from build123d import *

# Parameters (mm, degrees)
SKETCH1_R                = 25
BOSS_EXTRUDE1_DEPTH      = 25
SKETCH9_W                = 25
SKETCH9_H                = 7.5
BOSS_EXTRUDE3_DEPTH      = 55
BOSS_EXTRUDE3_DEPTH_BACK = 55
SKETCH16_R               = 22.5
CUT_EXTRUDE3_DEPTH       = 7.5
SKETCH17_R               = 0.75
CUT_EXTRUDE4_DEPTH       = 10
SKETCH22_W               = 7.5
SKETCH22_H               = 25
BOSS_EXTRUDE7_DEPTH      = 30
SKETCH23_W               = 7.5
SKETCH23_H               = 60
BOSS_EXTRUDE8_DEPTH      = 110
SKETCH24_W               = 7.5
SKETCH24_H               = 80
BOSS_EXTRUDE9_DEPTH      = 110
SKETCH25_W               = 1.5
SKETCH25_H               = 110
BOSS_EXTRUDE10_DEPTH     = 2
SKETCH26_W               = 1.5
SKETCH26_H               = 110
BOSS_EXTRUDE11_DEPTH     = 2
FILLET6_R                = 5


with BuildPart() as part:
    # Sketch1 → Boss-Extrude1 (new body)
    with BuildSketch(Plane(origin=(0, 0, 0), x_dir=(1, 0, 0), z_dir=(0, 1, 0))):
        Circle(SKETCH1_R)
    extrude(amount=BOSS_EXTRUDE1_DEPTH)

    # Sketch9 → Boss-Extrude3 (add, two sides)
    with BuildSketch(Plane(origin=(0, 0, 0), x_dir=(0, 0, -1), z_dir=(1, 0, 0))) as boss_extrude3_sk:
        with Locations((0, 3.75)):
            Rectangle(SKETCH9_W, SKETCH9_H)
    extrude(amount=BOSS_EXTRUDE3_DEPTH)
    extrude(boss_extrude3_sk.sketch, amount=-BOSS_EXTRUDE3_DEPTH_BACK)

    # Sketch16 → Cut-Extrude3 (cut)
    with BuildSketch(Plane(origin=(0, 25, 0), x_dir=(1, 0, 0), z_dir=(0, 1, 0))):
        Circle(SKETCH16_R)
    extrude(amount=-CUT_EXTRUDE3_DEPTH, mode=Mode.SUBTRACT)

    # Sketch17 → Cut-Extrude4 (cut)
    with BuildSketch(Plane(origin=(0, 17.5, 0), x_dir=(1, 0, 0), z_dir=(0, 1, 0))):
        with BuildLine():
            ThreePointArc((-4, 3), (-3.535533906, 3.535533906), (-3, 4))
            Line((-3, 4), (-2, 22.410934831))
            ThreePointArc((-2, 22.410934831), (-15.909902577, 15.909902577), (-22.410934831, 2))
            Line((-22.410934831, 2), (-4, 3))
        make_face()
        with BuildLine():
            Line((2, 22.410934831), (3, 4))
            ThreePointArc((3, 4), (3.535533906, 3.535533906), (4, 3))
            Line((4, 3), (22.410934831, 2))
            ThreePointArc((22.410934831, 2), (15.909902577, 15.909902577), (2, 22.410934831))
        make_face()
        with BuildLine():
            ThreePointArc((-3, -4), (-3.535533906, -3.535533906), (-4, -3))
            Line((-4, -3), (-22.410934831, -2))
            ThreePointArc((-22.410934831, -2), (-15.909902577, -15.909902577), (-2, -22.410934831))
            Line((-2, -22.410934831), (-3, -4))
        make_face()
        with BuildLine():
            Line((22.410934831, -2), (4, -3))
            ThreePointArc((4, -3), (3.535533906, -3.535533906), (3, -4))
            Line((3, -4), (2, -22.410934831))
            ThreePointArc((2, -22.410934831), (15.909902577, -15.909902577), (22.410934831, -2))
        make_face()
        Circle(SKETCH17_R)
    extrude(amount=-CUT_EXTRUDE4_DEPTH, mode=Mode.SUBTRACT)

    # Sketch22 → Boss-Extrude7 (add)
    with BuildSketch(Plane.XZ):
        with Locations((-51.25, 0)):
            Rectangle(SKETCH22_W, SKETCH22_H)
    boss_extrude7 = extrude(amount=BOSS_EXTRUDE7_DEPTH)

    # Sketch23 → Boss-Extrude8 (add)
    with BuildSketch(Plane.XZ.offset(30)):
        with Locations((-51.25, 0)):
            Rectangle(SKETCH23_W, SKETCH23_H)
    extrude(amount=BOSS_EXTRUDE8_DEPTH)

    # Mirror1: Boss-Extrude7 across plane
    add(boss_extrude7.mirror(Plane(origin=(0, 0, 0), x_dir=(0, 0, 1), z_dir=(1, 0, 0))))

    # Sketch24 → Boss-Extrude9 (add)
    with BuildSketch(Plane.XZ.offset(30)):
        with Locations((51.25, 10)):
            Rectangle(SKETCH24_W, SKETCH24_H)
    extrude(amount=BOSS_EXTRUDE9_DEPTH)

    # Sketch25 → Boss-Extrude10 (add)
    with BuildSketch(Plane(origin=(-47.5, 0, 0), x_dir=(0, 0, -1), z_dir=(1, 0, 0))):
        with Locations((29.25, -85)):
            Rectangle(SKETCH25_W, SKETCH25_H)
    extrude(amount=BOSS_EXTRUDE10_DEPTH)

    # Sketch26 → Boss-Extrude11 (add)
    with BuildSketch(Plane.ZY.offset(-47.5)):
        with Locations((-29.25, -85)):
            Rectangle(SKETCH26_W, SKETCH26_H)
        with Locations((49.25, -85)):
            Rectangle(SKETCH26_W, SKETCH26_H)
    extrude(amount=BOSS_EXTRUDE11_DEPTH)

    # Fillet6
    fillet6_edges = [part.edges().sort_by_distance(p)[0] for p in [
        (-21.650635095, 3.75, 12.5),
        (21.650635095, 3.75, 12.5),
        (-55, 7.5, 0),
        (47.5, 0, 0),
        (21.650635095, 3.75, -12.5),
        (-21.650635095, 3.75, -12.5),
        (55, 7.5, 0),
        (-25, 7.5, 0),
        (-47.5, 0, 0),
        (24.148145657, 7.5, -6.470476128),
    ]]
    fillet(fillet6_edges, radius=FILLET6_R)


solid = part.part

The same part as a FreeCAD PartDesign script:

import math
import FreeCAD as App
import Part
import Sketcher

V = App.Vector


def edges_at(feature, points):
    """Names of the edges that pass closest to the given points."""
    edges = feature.Shape.Edges
    near = lambda p: min(range(len(edges)), key=lambda i: edges[i].distToShape(Part.Vertex(*p))[0])
    return sorted({f"Edge{near(p) + 1}" for p in points})

doc = App.newDocument("Part")
body = doc.addObject("PartDesign::Body", "Body")

sketch1 = body.newObject("Sketcher::SketchObject", "Sketch")
sketch1.AttachmentSupport = (doc.getObject("XZ_Plane"), [""])
sketch1.MapMode = "FlatFace"
sketch1.addGeometry(Part.Circle(V(0, 0, 0), V(0, 0, 1), 25), False)
sketch1.addConstraint([
    Sketcher.Constraint("Coincident", 0, 3, -1, 1),
    Sketcher.Constraint("Diameter", 0, 50.0),
])
pad1 = body.newObject("PartDesign::Pad", "Pad")
pad1.Profile = sketch1
pad1.Length = 25
pad1.Reversed = True

sketch2 = body.newObject("Sketcher::SketchObject", "Sketch001")
sketch2.AttachmentSupport = (doc.getObject("YZ_Plane"), [""])
sketch2.MapMode = "FlatFace"
sketch2.addGeometry([
    Part.LineSegment(V(8, 12, 0), V(0, 12, 0)),
    Part.LineSegment(V(0, 12, 0), V(0, -12, 0)),
    Part.LineSegment(V(0, -12, 0), V(8, -12, 0)),
    Part.LineSegment(V(8, -12, 0), V(8, 12, 0)),
], False)
sketch2.addConstraint([
    Sketcher.Constraint("Coincident", 0, 2, 1, 1),
    Sketcher.Constraint("Coincident", 1, 2, 2, 1),
    Sketcher.Constraint("Coincident", 2, 2, 3, 1),
    Sketcher.Constraint("Coincident", 3, 2, 0, 1),
    Sketcher.Constraint("Horizontal", 0),
    Sketcher.Constraint("Vertical", 1),
    Sketcher.Constraint("Horizontal", 2),
    Sketcher.Constraint("Vertical", 3),
    Sketcher.Constraint("Symmetric", 0, 2, 1, 2, -1, 1),
    Sketcher.Constraint("DistanceY", 1, 2, 1, 1, 25.0),
    Sketcher.Constraint("DistanceX", 0, 2, 0, 1, 7.5),
])
pad2 = body.newObject("PartDesign::Pad", "Pad001")
pad2.Profile = sketch2
pad2.Type = "TwoLengths"
pad2.Length = 55
pad2.Length2 = 55

sketch3 = body.newObject("Sketcher::SketchObject", "Sketch002")
sketch3.AttachmentSupport = (doc.getObject("XZ_Plane"), [""])
sketch3.MapMode = "FlatFace"
sketch3.AttachmentOffset = App.Placement(V(0, 0, -25), App.Rotation())
sketch3.addGeometry(Part.Circle(V(0, 0, 0), V(0, 0, 1), 22), False)
sketch3.addConstraint([
    Sketcher.Constraint("Coincident", 0, 3, -1, 1),
    Sketcher.Constraint("Diameter", 0, 45.0),
])
pocket1 = body.newObject("PartDesign::Pocket", "Pocket")
pocket1.Profile = sketch3
pocket1.Length = 7.5
pocket1.Reversed = True

sketch4 = body.newObject("Sketcher::SketchObject", "Sketch003")
sketch4.AttachmentSupport = (doc.getObject("XZ_Plane"), [""])
sketch4.MapMode = "FlatFace"
sketch4.AttachmentOffset = App.Placement(V(0, 0, -17.5), App.Rotation())
sketch4.addGeometry([
    Part.ArcOfCircle(Part.Circle(V(0, 0, 0), V(0, 0, 1), 5), math.radians(-143.13), math.radians(-126.87)),
    Part.LineSegment(V(-3, -4, 0), V(-2, -22.4, 0)),
    Part.ArcOfCircle(Part.Circle(V(0, 0, 0), V(0, 0, 1), 22.5), math.radians(-175), math.radians(-95)),
    Part.LineSegment(V(-22.4, -2, 0), V(-4, -3, 0)),
    Part.LineSegment(V(2, -22.4, 0), V(3, -4, 0)),
    Part.ArcOfCircle(Part.Circle(V(0, 0, 0), V(0, 0, 1), 5), math.radians(-53.13), math.radians(-36.87)),
    Part.LineSegment(V(4, -3, 0), V(22.4, -2, 0)),
    Part.ArcOfCircle(Part.Circle(V(0, 0, 0), V(0, 0, 1), 22.5), math.radians(-85), math.radians(-5)),
    Part.ArcOfCircle(Part.Circle(V(0, 0, 0), V(0, 0, 1), 5), math.radians(126.87), math.radians(143.13)),
    Part.LineSegment(V(-4, 3, 0), V(-22.4, 2, 0)),
    Part.ArcOfCircle(Part.Circle(V(0, 0, 0), V(0, 0, 1), 22.5), math.radians(95), math.radians(175)),
    Part.LineSegment(V(-2, 22.4, 0), V(-3, 4, 0)),
    Part.LineSegment(V(22.4, 2, 0), V(4, 3, 0)),
    Part.ArcOfCircle(Part.Circle(V(0, 0, 0), V(0, 0, 1), 5), math.radians(36.87), math.radians(53.13)),
    Part.LineSegment(V(3, 4, 0), V(2, 22.4, 0)),
    Part.ArcOfCircle(Part.Circle(V(0, 0, 0), V(0, 0, 1), 22.5), math.radians(5), math.radians(85)),
    Part.Circle(V(0, 0, 0), V(0, 0, 1), 0.8),
], False)
sketch4.addConstraint([
    Sketcher.Constraint("Coincident", 0, 2, 1, 1),
    Sketcher.Constraint("Coincident", 1, 2, 2, 2),
    Sketcher.Constraint("Coincident", 2, 1, 3, 1),
    Sketcher.Constraint("Coincident", 3, 2, 0, 1),
    Sketcher.Constraint("Coincident", 4, 2, 5, 1),
    Sketcher.Constraint("Coincident", 5, 2, 6, 1),
    Sketcher.Constraint("Coincident", 6, 2, 7, 2),
    Sketcher.Constraint("Coincident", 7, 1, 4, 1),
    Sketcher.Constraint("Coincident", 8, 2, 9, 1),
    Sketcher.Constraint("Coincident", 9, 2, 10, 2),
    Sketcher.Constraint("Coincident", 10, 1, 11, 1),
    Sketcher.Constraint("Coincident", 11, 2, 8, 1),
    Sketcher.Constraint("Coincident", 12, 2, 13, 1),
    Sketcher.Constraint("Coincident", 13, 2, 14, 1),
    Sketcher.Constraint("Coincident", 14, 2, 15, 2),
    Sketcher.Constraint("Coincident", 15, 1, 12, 1),
    Sketcher.Constraint("Coincident", 0, 3, -1, 1),
    Sketcher.Constraint("Coincident", 2, 3, -1, 1),
    Sketcher.Constraint("Coincident", 5, 3, -1, 1),
    Sketcher.Constraint("Coincident", 7, 3, -1, 1),
    Sketcher.Constraint("Coincident", 8, 3, -1, 1),
    Sketcher.Constraint("Coincident", 10, 3, -1, 1),
    Sketcher.Constraint("Coincident", 13, 3, -1, 1),
    Sketcher.Constraint("Coincident", 15, 3, -1, 1),
    Sketcher.Constraint("Coincident", 16, 3, -1, 1),
    Sketcher.Constraint("Equal", 0, 5),
    Sketcher.Constraint("Equal", 2, 7),
    Sketcher.Constraint("Equal", 5, 8),
    Sketcher.Constraint("Equal", 7, 10),
    Sketcher.Constraint("Equal", 8, 13),
    Sketcher.Constraint("Equal", 10, 15),
    Sketcher.Constraint("Perpendicular", 3, 4),
    Sketcher.Constraint("Perpendicular", 1, 6),
    Sketcher.Constraint("Parallel", 6, 9),
    Sketcher.Constraint("Parallel", 4, 11),
    Sketcher.Constraint("Perpendicular", 11, 12),
    Sketcher.Constraint("Perpendicular", 9, 14),
    Sketcher.Constraint("Horizontal", 0, 2, 4, 2),
    Sketcher.Constraint("Horizontal", 3, 2, 5, 2),
    Sketcher.Constraint("Horizontal", 2, 1, 6, 2),
    Sketcher.Constraint("Horizontal", 8, 2, 12, 2),
    Sketcher.Constraint("Horizontal", 11, 2, 13, 2),
    Sketcher.Constraint("Vertical", 3, 2, 8, 2),
    Sketcher.Constraint("Vertical", 1, 2, 10, 1),
    Sketcher.Constraint("Equal", 1, 3),
    Sketcher.Constraint("Radius", 0, 5.0),
    Sketcher.Constraint("Diameter", 16, 1.5),
    Sketcher.Constraint("Radius", 2, 22.5),
    Sketcher.Constraint("DistanceX", 0, 2, -1, 1, 3.0),
    Sketcher.Constraint("DistanceX", 1, 2, -1, 1, 2.0),
])
pocket2 = body.newObject("PartDesign::Pocket", "Pocket001")
pocket2.Profile = sketch4
pocket2.Length = 10
pocket2.Reversed = True

sketch5 = body.newObject("Sketcher::SketchObject", "Sketch004")
sketch5.AttachmentSupport = (doc.getObject("XZ_Plane"), [""])
sketch5.MapMode = "FlatFace"
sketch5.addGeometry([
    Part.LineSegment(V(-55, 12, 0), V(-55, -12, 0)),
    Part.LineSegment(V(-55, -12, 0), V(-48, -12, 0)),
    Part.LineSegment(V(-48, -12, 0), V(-48, 12, 0)),
    Part.LineSegment(V(-48, 12, 0), V(-55, 12, 0)),
], False)
sketch5.addConstraint([
    Sketcher.Constraint("Coincident", 0, 2, 1, 1),
    Sketcher.Constraint("Coincident", 1, 2, 2, 1),
    Sketcher.Constraint("Coincident", 2, 2, 3, 1),
    Sketcher.Constraint("Coincident", 3, 2, 0, 1),
    Sketcher.Constraint("Vertical", 0),
    Sketcher.Constraint("Horizontal", 1),
    Sketcher.Constraint("Vertical", 2),
    Sketcher.Constraint("Horizontal", 3),
    Sketcher.Constraint("DistanceY", 0, 2, 0, 1, 25.0),
    Sketcher.Constraint("DistanceX", 1, 1, 1, 2, 7.5),
    Sketcher.Constraint("DistanceX", 0, 2, -1, 1, 55.0),
    Sketcher.Constraint("DistanceY", 0, 2, -1, 1, 12.5),
])
pad3 = body.newObject("PartDesign::Pad", "Pad002")
pad3.Profile = sketch5
pad3.Length = 30

sketch6 = body.newObject("Sketcher::SketchObject", "Sketch005")
sketch6.AttachmentSupport = (doc.getObject("XZ_Plane"), [""])
sketch6.MapMode = "FlatFace"
sketch6.AttachmentOffset = App.Placement(V(0, 0, 30), App.Rotation())
sketch6.addGeometry([
    Part.LineSegment(V(-55, 30, 0), V(-55, -30, 0)),
    Part.LineSegment(V(-55, -30, 0), V(-48, -30, 0)),
    Part.LineSegment(V(-48, -30, 0), V(-48, 30, 0)),
    Part.LineSegment(V(-48, 30, 0), V(-55, 30, 0)),
], False)
sketch6.addConstraint([
    Sketcher.Constraint("Coincident", 0, 2, 1, 1),
    Sketcher.Constraint("Coincident", 1, 2, 2, 1),
    Sketcher.Constraint("Coincident", 2, 2, 3, 1),
    Sketcher.Constraint("Coincident", 3, 2, 0, 1),
    Sketcher.Constraint("Vertical", 0),
    Sketcher.Constraint("Horizontal", 1),
    Sketcher.Constraint("Vertical", 2),
    Sketcher.Constraint("Horizontal", 3),
    Sketcher.Constraint("DistanceY", 0, 2, 0, 1, 60.0),
    Sketcher.Constraint("DistanceX", 1, 1, 1, 2, 7.5),
    Sketcher.Constraint("DistanceX", 0, 2, -1, 1, 55.0),
    Sketcher.Constraint("DistanceY", 0, 2, -1, 1, 30.0),
])
pad4 = body.newObject("PartDesign::Pad", "Pad003")
pad4.Profile = sketch6
pad4.Length = 110
doc.recompute()

mirrored = body.newObject("PartDesign::Mirrored", "Mirrored")
mirrored.Originals = [pad3]
mirrored.MirrorPlane = (doc.getObject("YZ_Plane"), [""])
body.Tip = mirrored

sketch7 = body.newObject("Sketcher::SketchObject", "Sketch006")
sketch7.AttachmentSupport = (doc.getObject("XZ_Plane"), [""])
sketch7.MapMode = "FlatFace"
sketch7.AttachmentOffset = App.Placement(V(0, 0, 30), App.Rotation())
sketch7.addGeometry([
    Part.LineSegment(V(48, 50, 0), V(48, -30, 0)),
    Part.LineSegment(V(48, -30, 0), V(55, -30, 0)),
    Part.LineSegment(V(55, -30, 0), V(55, 50, 0)),
    Part.LineSegment(V(55, 50, 0), V(48, 50, 0)),
], False)
sketch7.addConstraint([
    Sketcher.Constraint("Coincident", 0, 2, 1, 1),
    Sketcher.Constraint("Coincident", 1, 2, 2, 1),
    Sketcher.Constraint("Coincident", 2, 2, 3, 1),
    Sketcher.Constraint("Coincident", 3, 2, 0, 1),
    Sketcher.Constraint("Vertical", 0),
    Sketcher.Constraint("Horizontal", 1),
    Sketcher.Constraint("Vertical", 2),
    Sketcher.Constraint("Horizontal", 3),
    Sketcher.Constraint("DistanceY", 0, 2, 0, 1, 80.0),
    Sketcher.Constraint("DistanceX", 1, 1, 1, 2, 7.5),
    Sketcher.Constraint("DistanceY", 0, 2, -1, 1, 30.0),
    Sketcher.Constraint("DistanceX", -1, 1, 1, 2, 55.0),
])
pad5 = body.newObject("PartDesign::Pad", "Pad004")
pad5.Profile = sketch7
pad5.Length = 110

sketch8 = body.newObject("Sketcher::SketchObject", "Sketch007")
sketch8.AttachmentSupport = (doc.getObject("YZ_Plane"), [""])
sketch8.MapMode = "FlatFace"
sketch8.AttachmentOffset = App.Placement(V(0, 0, -47.5), App.Rotation())
sketch8.addGeometry([
    Part.LineSegment(V(-30, -28.5, 0), V(-140, -28.5, 0)),
    Part.LineSegment(V(-140, -28.5, 0), V(-140, -30, 0)),
    Part.LineSegment(V(-140, -30, 0), V(-30, -30, 0)),
    Part.LineSegment(V(-30, -30, 0), V(-30, -28.5, 0)),
], False)
sketch8.addConstraint([
    Sketcher.Constraint("Coincident", 0, 2, 1, 1),
    Sketcher.Constraint("Coincident", 1, 2, 2, 1),
    Sketcher.Constraint("Coincident", 2, 2, 3, 1),
    Sketcher.Constraint("Coincident", 3, 2, 0, 1),
    Sketcher.Constraint("Horizontal", 0),
    Sketcher.Constraint("Vertical", 1),
    Sketcher.Constraint("Horizontal", 2),
    Sketcher.Constraint("Vertical", 3),
    Sketcher.Constraint("DistanceX", 0, 2, 0, 1, 110.0),
    Sketcher.Constraint("DistanceY", 1, 2, 1, 1, 1.5),
    Sketcher.Constraint("DistanceX", 0, 2, -1, 1, 140.0),
    Sketcher.Constraint("DistanceY", 1, 2, -1, 1, 30.0),
])
pad6 = body.newObject("PartDesign::Pad", "Pad005")
pad6.Profile = sketch8
pad6.Length = 2

sketch9 = body.newObject("Sketcher::SketchObject", "Sketch008")
sketch9.AttachmentSupport = (doc.getObject("YZ_Plane"), [""])
sketch9.MapMode = "FlatFace"
sketch9.AttachmentOffset = App.Placement(V(0, 0, 47.5), App.Rotation())
sketch9.addGeometry([
    Part.LineSegment(V(-30, -30, 0), V(-140, -30, 0)),
    Part.LineSegment(V(-140, -30, 0), V(-140, -28.5, 0)),
    Part.LineSegment(V(-140, -28.5, 0), V(-30, -28.5, 0)),
    Part.LineSegment(V(-30, -28.5, 0), V(-30, -30, 0)),
    Part.LineSegment(V(-30, 48.5, 0), V(-140, 48.5, 0)),
    Part.LineSegment(V(-140, 48.5, 0), V(-140, 50, 0)),
    Part.LineSegment(V(-140, 50, 0), V(-30, 50, 0)),
    Part.LineSegment(V(-30, 50, 0), V(-30, 48.5, 0)),
], False)
sketch9.addConstraint([
    Sketcher.Constraint("Coincident", 0, 2, 1, 1),
    Sketcher.Constraint("Coincident", 1, 2, 2, 1),
    Sketcher.Constraint("Coincident", 2, 2, 3, 1),
    Sketcher.Constraint("Coincident", 3, 2, 0, 1),
    Sketcher.Constraint("Coincident", 4, 2, 5, 1),
    Sketcher.Constraint("Coincident", 5, 2, 6, 1),
    Sketcher.Constraint("Coincident", 6, 2, 7, 1),
    Sketcher.Constraint("Coincident", 7, 2, 4, 1),
    Sketcher.Constraint("Horizontal", 0),
    Sketcher.Constraint("Vertical", 1),
    Sketcher.Constraint("Horizontal", 2),
    Sketcher.Constraint("Vertical", 3),
    Sketcher.Constraint("Horizontal", 4),
    Sketcher.Constraint("Vertical", 5),
    Sketcher.Constraint("Horizontal", 6),
    Sketcher.Constraint("Vertical", 7),
    Sketcher.Constraint("Vertical", 1, 2, 4, 2),
    Sketcher.Constraint("Vertical", 3, 2, 6, 2),
    Sketcher.Constraint("Equal", 3, 5),
    Sketcher.Constraint("DistanceX", 0, 2, 0, 1, 110.0),
    Sketcher.Constraint("DistanceY", 1, 1, 1, 2, 1.5),
    Sketcher.Constraint("DistanceX", 0, 2, -1, 1, 140.0),
    Sketcher.Constraint("DistanceY", 0, 2, -1, 1, 30.0),
    Sketcher.Constraint("DistanceY", -1, 1, 5, 2, 50.0),
])
pad7 = body.newObject("PartDesign::Pad", "Pad006")
pad7.Profile = sketch9
pad7.Length = 2
pad7.Reversed = True
doc.recompute()

fillet = body.newObject("PartDesign::Fillet", "Fillet")
fillet.Base = (pad7, edges_at(pad7, [
    (-21.651, 3.75, 12.5),
    (21.651, 3.75, 12.5),
    (-55, 7.5, 0),
    (47.5, 0, 0),
    (21.651, 3.75, -12.5),
    (-21.651, 3.75, -12.5),
    (55, 7.5, 0),
    (-25, 7.5, 0),
    (-47.5, 0, 0),
    (24.148, 7.5, -6.47),
]))
fillet.Radius = 5

doc.recompute()
